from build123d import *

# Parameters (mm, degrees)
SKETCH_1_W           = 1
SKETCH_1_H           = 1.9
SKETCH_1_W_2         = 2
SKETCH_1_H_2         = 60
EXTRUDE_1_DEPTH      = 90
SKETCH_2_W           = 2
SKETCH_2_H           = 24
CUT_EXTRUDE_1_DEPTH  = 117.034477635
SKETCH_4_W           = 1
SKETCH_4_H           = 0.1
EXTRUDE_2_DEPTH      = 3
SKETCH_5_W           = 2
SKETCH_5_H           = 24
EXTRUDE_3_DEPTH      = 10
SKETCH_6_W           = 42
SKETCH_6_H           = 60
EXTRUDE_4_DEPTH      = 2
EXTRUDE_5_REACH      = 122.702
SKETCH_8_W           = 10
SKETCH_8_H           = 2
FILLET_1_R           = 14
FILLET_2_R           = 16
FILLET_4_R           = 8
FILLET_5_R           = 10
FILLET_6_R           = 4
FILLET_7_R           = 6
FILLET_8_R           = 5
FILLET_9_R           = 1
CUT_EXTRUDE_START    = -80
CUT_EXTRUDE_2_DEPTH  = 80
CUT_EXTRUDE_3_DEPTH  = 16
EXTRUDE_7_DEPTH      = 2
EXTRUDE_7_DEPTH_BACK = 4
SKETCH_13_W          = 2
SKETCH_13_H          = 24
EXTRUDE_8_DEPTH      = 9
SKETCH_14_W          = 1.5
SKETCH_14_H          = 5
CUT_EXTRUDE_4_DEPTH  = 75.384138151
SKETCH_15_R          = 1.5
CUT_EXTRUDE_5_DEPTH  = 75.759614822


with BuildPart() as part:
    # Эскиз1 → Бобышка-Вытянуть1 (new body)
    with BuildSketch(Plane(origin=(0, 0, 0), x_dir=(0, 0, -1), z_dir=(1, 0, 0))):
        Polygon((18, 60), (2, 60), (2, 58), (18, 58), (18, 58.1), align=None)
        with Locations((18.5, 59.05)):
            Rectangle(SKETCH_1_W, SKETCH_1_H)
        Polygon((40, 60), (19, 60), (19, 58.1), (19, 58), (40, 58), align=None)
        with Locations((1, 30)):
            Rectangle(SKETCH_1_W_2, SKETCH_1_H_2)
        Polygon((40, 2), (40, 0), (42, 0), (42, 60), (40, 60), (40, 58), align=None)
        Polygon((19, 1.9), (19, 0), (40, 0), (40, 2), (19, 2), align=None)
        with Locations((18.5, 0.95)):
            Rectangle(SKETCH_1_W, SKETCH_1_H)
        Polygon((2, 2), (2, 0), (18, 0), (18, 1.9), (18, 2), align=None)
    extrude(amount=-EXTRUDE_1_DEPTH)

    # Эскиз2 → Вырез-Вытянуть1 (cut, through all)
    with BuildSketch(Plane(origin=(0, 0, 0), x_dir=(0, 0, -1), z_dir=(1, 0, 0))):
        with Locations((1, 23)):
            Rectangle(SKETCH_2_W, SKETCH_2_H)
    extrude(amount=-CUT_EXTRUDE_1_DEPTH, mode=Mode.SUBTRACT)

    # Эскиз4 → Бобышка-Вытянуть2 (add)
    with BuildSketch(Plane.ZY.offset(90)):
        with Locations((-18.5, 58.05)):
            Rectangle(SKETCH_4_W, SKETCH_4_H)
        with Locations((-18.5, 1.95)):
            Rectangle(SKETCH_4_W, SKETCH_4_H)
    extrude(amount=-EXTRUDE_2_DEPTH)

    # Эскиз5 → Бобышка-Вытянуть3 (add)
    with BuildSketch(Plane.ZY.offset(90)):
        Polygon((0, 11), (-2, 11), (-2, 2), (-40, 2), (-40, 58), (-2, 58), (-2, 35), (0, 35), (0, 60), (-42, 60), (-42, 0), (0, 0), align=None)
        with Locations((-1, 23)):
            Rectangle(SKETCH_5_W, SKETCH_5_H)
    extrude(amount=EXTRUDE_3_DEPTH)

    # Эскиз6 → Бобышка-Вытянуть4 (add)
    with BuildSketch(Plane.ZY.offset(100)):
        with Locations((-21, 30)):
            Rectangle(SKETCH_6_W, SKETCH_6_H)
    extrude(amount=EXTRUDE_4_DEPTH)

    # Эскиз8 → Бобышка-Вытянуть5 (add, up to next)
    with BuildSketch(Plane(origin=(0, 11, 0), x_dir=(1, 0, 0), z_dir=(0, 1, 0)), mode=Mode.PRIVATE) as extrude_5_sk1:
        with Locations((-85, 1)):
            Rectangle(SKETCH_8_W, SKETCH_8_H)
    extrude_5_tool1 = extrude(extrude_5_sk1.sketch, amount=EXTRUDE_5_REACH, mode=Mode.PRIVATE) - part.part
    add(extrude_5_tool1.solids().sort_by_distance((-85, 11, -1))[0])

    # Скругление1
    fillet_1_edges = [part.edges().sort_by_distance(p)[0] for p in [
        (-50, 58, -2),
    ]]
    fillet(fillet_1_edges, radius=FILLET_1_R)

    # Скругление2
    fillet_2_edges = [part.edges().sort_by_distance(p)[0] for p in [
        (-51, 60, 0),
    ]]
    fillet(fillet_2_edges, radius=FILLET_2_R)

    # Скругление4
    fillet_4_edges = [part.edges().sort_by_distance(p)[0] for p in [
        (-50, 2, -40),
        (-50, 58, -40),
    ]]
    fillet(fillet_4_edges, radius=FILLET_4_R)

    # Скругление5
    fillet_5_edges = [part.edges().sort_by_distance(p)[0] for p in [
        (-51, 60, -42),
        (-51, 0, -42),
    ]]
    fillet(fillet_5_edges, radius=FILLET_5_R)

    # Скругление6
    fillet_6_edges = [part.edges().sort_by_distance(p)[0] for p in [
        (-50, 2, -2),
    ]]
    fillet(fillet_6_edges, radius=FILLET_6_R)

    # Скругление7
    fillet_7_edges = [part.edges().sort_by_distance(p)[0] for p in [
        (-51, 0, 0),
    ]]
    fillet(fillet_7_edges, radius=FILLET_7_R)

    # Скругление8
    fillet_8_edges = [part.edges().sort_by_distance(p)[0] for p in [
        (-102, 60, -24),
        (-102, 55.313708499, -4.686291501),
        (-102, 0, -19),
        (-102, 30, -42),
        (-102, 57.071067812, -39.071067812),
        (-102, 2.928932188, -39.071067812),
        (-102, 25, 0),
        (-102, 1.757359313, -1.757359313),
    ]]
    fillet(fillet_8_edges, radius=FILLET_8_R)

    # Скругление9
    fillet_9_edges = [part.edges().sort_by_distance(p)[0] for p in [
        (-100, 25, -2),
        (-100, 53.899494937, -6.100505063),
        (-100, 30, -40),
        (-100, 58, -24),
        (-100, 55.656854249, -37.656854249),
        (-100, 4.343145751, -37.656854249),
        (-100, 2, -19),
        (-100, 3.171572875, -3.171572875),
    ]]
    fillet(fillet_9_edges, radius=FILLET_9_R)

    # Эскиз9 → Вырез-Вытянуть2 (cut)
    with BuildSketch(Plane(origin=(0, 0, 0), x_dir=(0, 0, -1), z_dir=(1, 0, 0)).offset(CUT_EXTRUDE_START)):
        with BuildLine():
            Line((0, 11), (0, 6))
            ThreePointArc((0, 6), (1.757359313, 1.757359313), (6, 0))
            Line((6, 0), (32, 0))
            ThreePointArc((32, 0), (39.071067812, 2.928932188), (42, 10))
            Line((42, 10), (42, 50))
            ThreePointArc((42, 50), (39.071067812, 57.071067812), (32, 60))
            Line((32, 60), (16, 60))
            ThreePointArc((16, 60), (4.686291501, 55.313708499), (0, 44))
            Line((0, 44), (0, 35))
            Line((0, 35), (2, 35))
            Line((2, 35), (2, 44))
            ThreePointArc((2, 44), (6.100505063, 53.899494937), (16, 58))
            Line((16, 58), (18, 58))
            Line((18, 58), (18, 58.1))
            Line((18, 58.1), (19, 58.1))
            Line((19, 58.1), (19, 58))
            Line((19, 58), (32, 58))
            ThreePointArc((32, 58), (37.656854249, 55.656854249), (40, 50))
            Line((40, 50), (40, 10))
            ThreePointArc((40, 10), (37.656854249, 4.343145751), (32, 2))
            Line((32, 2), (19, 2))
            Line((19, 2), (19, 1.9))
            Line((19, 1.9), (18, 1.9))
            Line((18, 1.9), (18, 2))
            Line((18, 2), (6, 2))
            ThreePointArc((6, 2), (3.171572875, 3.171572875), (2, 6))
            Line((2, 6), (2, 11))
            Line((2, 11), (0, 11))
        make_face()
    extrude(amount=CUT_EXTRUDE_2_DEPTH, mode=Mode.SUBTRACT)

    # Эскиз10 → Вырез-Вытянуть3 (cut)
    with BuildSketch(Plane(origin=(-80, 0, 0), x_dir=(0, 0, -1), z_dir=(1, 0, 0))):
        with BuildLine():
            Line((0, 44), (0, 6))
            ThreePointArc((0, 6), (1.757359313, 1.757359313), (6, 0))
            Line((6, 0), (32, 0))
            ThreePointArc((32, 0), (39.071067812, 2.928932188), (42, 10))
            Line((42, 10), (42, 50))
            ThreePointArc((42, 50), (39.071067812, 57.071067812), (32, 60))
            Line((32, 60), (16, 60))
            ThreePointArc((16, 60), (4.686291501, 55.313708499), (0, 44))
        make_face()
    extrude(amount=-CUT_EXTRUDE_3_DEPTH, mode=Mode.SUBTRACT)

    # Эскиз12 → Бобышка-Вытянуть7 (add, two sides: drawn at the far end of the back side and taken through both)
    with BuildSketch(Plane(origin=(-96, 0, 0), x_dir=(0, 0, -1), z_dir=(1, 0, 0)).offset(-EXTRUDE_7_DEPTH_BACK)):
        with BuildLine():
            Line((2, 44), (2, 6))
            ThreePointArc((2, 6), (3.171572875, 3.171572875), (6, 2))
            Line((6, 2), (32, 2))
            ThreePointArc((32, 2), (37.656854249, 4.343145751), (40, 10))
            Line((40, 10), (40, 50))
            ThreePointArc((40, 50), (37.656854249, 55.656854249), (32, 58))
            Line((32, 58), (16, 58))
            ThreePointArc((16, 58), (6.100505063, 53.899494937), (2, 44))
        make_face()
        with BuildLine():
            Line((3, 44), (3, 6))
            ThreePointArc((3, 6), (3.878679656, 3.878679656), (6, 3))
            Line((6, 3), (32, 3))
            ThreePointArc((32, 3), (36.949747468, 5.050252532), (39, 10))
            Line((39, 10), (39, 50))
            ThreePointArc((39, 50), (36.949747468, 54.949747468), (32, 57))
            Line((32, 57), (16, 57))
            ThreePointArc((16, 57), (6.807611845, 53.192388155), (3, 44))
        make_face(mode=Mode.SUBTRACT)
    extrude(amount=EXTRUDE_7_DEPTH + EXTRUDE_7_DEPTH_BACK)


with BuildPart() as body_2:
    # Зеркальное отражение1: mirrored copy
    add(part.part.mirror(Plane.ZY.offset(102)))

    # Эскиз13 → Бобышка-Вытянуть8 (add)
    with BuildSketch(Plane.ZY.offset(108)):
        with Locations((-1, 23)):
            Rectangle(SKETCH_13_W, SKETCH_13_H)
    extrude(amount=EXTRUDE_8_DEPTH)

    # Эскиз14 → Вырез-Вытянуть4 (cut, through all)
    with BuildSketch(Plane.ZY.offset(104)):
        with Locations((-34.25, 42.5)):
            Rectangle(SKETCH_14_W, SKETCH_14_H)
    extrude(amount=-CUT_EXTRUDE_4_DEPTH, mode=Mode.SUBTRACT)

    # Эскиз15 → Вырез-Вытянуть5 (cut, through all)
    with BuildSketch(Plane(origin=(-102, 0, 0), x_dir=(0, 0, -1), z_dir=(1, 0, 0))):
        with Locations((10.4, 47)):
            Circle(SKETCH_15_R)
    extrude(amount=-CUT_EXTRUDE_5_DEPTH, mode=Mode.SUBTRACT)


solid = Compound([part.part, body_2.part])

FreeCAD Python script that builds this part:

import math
import FreeCAD as App
import Part
import Sketcher
Q = App.Units.Quantity


def edges_at(feature, points):
    """Names of the edges that pass closest to the given points."""
    edges = feature.Shape.Edges
    near = lambda p: min(range(len(edges)), key=lambda i: edges[i].distToShape(Part.Vertex(*p))[0])
    return sorted({f"Edge{near(p) + 1}" for p in points})

doc = App.newDocument("Part")
params = doc.addObject("Spreadsheet::Sheet", "Params")
for row, (alias, value) in enumerate([
    ("sketch1_width", "60 mm"),
    ("sketch1_width2", "56 mm"),
    ("sketch1_height", "42 mm"),
    ("sketch1_height2", "16 mm"),
    ("sketch1_height3", "1 mm"),
    ("pad1_length", "90 mm"),
    ("sketch2_width", "24 mm"),
    ("sketch2_height", "2 mm"),
    ("sketch3_height", "1 mm"),
    ("sketch3_width", "0.1 mm"),
    ("pad2_length", "3 mm"),
    ("sketch4_width", "60 mm"),
    ("sketch4_width2", "56 mm"),
    ("sketch4_height", "42 mm"),
    ("sketch4_height2", "38 mm"),
    ("pad3_length", "10 mm"),
    ("sketch5_width", "60 mm"),
    ("sketch5_height", "42 mm"),
    ("pad4_length", "2 mm"),
    ("sketch6_width", "10 mm"),
    ("sketch6_height", "2 mm"),
    ("fillet_radius", "14 mm"),
    ("fillet2_radius", "16 mm"),
    ("fillet3_radius", "8 mm"),
    ("fillet4_radius", "10 mm"),
    ("fillet5_radius", "4 mm"),
    ("fillet6_radius", "6 mm"),
    ("fillet7_radius", "5 mm"),
    ("fillet8_radius", "1 mm"),
    ("sketch7_radius", "6 mm"),
    ("sketch7_radius2", "10 mm"),
    ("sketch7_radius3", "16 mm"),
    ("sketch7_radius4", "14 mm"),
    ("sketch7_width", "5 mm"),
    ("pocket2_length", "80 mm"),
    ("sketch8_radius", "6 mm"),
    ("sketch8_radius2", "10 mm"),
    ("sketch8_radius3", "16 mm"),
    ("sketch8_width", "38 mm"),
    ("sketch8_height", "26 mm"),
    ("pocket3_length", "16 mm"),
    ("sketch9_radius", "4 mm"),
    ("sketch9_radius2", "8 mm"),
    ("sketch9_radius3", "14 mm"),
    ("sketch9_radius4", "13 mm"),
    ("sketch9_width", "38 mm"),
    ("pad6_length", "2 mm"),
    ("pad6_length2", "4 mm"),
    ("sketch10_width", "24 mm"),
    ("sketch10_height", "2 mm"),
    ("pad7_length", "9 mm"),
    ("sketch11_width", "5 mm"),
    ("sketch11_height", "1.5 mm"),
    ("sketch12_diameter", "3 mm"),
], start=1):
    params.set(f"A{row}", alias)
    params.set(f"B{row}", "=" + value)
    params.setAlias(f"B{row}", alias)

body = doc.addObject("PartDesign::Body", "Body")

sketch1 = body.newObject("Sketcher::SketchObject", "Sketch")
sketch1.AttachmentSupport = (doc.getObject("YZ_Plane"), [""])
sketch1.MapMode = "FlatFace"
sketch1.addGeometry([
    Part.LineSegment(App.Vector(0, -42, 0), App.Vector(60, -42, 0)),
    Part.LineSegment(App.Vector(60, -42, 0), App.Vector(60, 0, 0)),
    Part.LineSegment(App.Vector(60, 0, 0), App.Vector(0, 0, 0)),
    Part.LineSegment(App.Vector(0, 0, 0), App.Vector(0, -42, 0)),
    Part.LineSegment(App.Vector(58, -2, 0), App.Vector(58, -18, 0)),
    Part.LineSegment(App.Vector(58, -18, 0), App.Vector(58.1, -18, 0)),
    Part.LineSegment(App.Vector(58.1, -18, 0), App.Vector(58.1, -19, 0)),
    Part.LineSegment(App.Vector(58.1, -19, 0), App.Vector(58, -19, 0)),
    Part.LineSegment(App.Vector(58, -19, 0), App.Vector(58, -40, 0)),
    Part.LineSegment(App.Vector(58, -40, 0), App.Vector(2, -40, 0)),
    Part.LineSegment(App.Vector(2, -40, 0), App.Vector(2, -19, 0)),
    Part.LineSegment(App.Vector(2, -19, 0), App.Vector(1.9, -19, 0)),
    Part.LineSegment(App.Vector(1.9, -19, 0), App.Vector(1.9, -18, 0)),
    Part.LineSegment(App.Vector(1.9, -18, 0), App.Vector(2, -18, 0)),
    Part.LineSegment(App.Vector(2, -18, 0), App.Vector(2, -2, 0)),
    Part.LineSegment(App.Vector(2, -2, 0), App.Vector(58, -2, 0)),
], False)
sketch1.addConstraint([
    Sketcher.Constraint("Coincident", 0, 2, 1, 1),
    Sketcher.Constraint("Coincident", 1, 2, 2, 1),
    Sketcher.Constraint("Coincident", 2, 2, 3, 1),
    Sketcher.Constraint("Coincident", 3, 2, 0, 1),
    Sketcher.Constraint("Coincident", 4, 2, 5, 1),
    Sketcher.Constraint("Coincident", 5, 2, 6, 1),
    Sketcher.Constraint("Coincident", 6, 2, 7, 1),
    Sketcher.Constraint("Coincident", 7, 2, 8, 1),
    Sketcher.Constraint("Coincident", 8, 2, 9, 1),
    Sketcher.Constraint("Coincident", 9, 2, 10, 1),
    Sketcher.Constraint("Coincident", 10, 2, 11, 1),
    Sketcher.Constraint("Coincident", 11, 2, 12, 1),
    Sketcher.Constraint("Coincident", 12, 2, 13, 1),
    Sketcher.Constraint("Coincident", 13, 2, 14, 1),
    Sketcher.Constraint("Coincident", 14, 2, 15, 1),
    Sketcher.Constraint("Coincident", 15, 2, 4, 1),
    Sketcher.Constraint("Horizontal", 0),
    Sketcher.Constraint("Vertical", 1),
    Sketcher.Constraint("Horizontal", 2),
    Sketcher.Constraint("Vertical", 3),
    Sketcher.Constraint("Vertical", 4),
    Sketcher.Constraint("Horizontal", 5),
    Sketcher.Constraint("Vertical", 6),
    Sketcher.Constraint("Horizontal", 7),
    Sketcher.Constraint("Vertical", 8),
    Sketcher.Constraint("Horizontal", 9),
    Sketcher.Constraint("Vertical", 10),
    Sketcher.Constraint("Horizontal", 11),
    Sketcher.Constraint("Vertical", 12),
    Sketcher.Constraint("Horizontal", 13),
    Sketcher.Constraint("Vertical", 14),
    Sketcher.Constraint("Horizontal", 15),
    Sketcher.Constraint("Coincident", 2, 2, -1, 1),
    Sketcher.Constraint("Horizontal", 7, 2, 10, 2),
    Sketcher.Constraint("Horizontal", 5, 2, 12, 2),
    Sketcher.Constraint("Vertical", 4, 2, 7, 2),
    Sketcher.Constraint("Vertical", 10, 2, 13, 2),
    Sketcher.Constraint("Equal", 7, 11),
    Sketcher.Constraint("DistanceX", 0, 1, 0, 2, Q("60 mm")),
    Sketcher.Constraint("DistanceX", 9, 2, 9, 1, Q("56 mm")),
    Sketcher.Constraint("DistanceY", 1, 1, 1, 2, Q("42 mm")),
    Sketcher.Constraint("DistanceY", 4, 2, 4, 1, Q("16 mm")),
    Sketcher.Constraint("DistanceY", 6, 2, 6, 1, Q("1 mm")),
    Sketcher.Constraint("DistanceY", 8, 2, 8, 1, Q("21 mm")),
    Sketcher.Constraint("DistanceX", 5, 1, 5, 2, Q("0.1 mm")),
    Sketcher.Constraint("DistanceX", -1, 1, 4, 2, Q("58 mm")),
    Sketcher.Constraint("DistanceY", 4, 2, -1, 1, Q("18 mm")),
])
sketch1.setExpression("Constraints[38]", "Params.sketch1_width")
sketch1.setExpression("Constraints[39]", "Params.sketch1_width2")
sketch1.setExpression("Constraints[40]", "Params.sketch1_height")
sketch1.setExpression("Constraints[41]", "Params.sketch1_height2")
sketch1.setExpression("Constraints[42]", "Params.sketch1_height3")
pad1 = body.newObject("PartDesign::Pad", "Pad")
pad1.Profile = sketch1
pad1.setExpression("Length", "Params.pad1_length")
pad1.Reversed = True

sketch2 = body.newObject("Sketcher::SketchObject", "Sketch001")
sketch2.AttachmentSupport = (doc.getObject("YZ_Plane"), [""])
sketch2.MapMode = "FlatFace"
sketch2.addGeometry([
    Part.LineSegment(App.Vector(35, 0, 0), App.Vector(11, 0, 0)),
    Part.LineSegment(App.Vector(11, 0, 0), App.Vector(11, -2, 0)),
    Part.LineSegment(App.Vector(11, -2, 0), App.Vector(35, -2, 0)),
    Part.LineSegment(App.Vector(35, -2, 0), App.Vector(35, 0, 0)),
], False)
sketch2.addConstraint([
    Sketcher.Constraint("Coincident", 0, 2, 1, 1),
    Sketcher.Constraint("Coincident", 1, 2, 2, 1),
    Sketcher.Constraint("Coincident", 2, 2, 3, 1),
    Sketcher.Constraint("Coincident", 3, 2, 0, 1),
    Sketcher.Constraint("Horizontal", 0),
    Sketcher.Constraint("Vertical", 1),
    Sketcher.Constraint("Horizontal", 2),
    Sketcher.Constraint("Vertical", 3),
    Sketcher.Constraint("PointOnObject", 0, 2, -1),
    Sketcher.Constraint("DistanceX", 0, 2, 0, 1, Q("24 mm")),
    Sketcher.Constraint("DistanceY", 1, 2, 1, 1, Q("2 mm")),
    Sketcher.Constraint("DistanceX", -1, 1, 0, 2, Q("11 mm")),
])
sketch2.setExpression("Constraints[9]", "Params.sketch2_width")
sketch2.setExpression("Constraints[10]", "Params.sketch2_height")
pocket1 = body.newObject("PartDesign::Pocket", "Pocket")
pocket1.Profile = sketch2
pocket1.Type = "ThroughAll"

sketch3 = body.newObject("Sketcher::SketchObject", "Sketch002")
sketch3.AttachmentSupport = (doc.getObject("YZ_Plane"), [""])
sketch3.MapMode = "FlatFace"
sketch3.AttachmentOffset = App.Placement(App.Vector(0, 0, -90), App.Rotation())
sketch3.addGeometry([
    Part.LineSegment(App.Vector(58.1, -19, 0), App.Vector(58, -19, 0)),
    Part.LineSegment(App.Vector(58, -19, 0), App.Vector(58, -18, 0)),
    Part.LineSegment(App.Vector(58, -18, 0), App.Vector(58.1, -18, 0)),
    Part.LineSegment(App.Vector(58.1, -18, 0), App.Vector(58.1, -19, 0)),
    Part.LineSegment(App.Vector(2, -19, 0), App.Vector(1.9, -19, 0)),
    Part.LineSegment(App.Vector(1.9, -19, 0), App.Vector(1.9, -18, 0)),
    Part.LineSegment(App.Vector(1.9, -18, 0), App.Vector(2, -18, 0)),
    Part.LineSegment(App.Vector(2, -18, 0), App.Vector(2, -19, 0)),
], False)
sketch3.addConstraint([
    Sketcher.Constraint("Coincident", 0, 2, 1, 1),
    Sketcher.Constraint("Coincident", 1, 2, 2, 1),
    Sketcher.Constraint("Coincident", 2, 2, 3, 1),
    Sketcher.Constraint("Coincident", 3, 2, 0, 1),
    Sketcher.Constraint("Coincident", 4, 2, 5, 1),
    Sketcher.Constraint("Coincident", 5, 2, 6, 1),
    Sketcher.Constraint("Coincident", 6, 2, 7, 1),
    Sketcher.Constraint("Coincident", 7, 2, 4, 1),
    Sketcher.Constraint("Horizontal", 0),
    Sketcher.Constraint("Vertical", 1),
    Sketcher.Constraint("Horizontal", 2),
    Sketcher.Constraint("Vertical", 3),
    Sketcher.Constraint("Horizontal", 4),
    Sketcher.Constraint("Vertical", 5),
    Sketcher.Constraint("Horizontal", 6),
    Sketcher.Constraint("Vertical", 7),
    Sketcher.Constraint("Horizontal", 3, 2, 4, 2),
    Sketcher.Constraint("Horizontal", 2, 2, 5, 2),
    Sketcher.Constraint("Equal", 2, 4),
    Sketcher.Constraint("DistanceY", 1, 1, 1, 2, Q("1 mm")),
    Sketcher.Constraint("DistanceX", 0, 2, 0, 1, Q("0.1 mm")),
    Sketcher.Constraint("DistanceX", -1, 1, 0, 2, Q("58 mm")),
    Sketcher.Constraint("DistanceY", 0, 2, -1, 1, Q("19 mm")),
    Sketcher.Constraint("DistanceX", -1, 1, 6, 2, Q("2 mm")),
])
sketch3.setExpression("Constraints[19]", "Params.sketch3_height")
sketch3.setExpression("Constraints[20]", "Params.sketch3_width")
pad2 = body.newObject("PartDesign::Pad", "Pad001")
pad2.Profile = sketch3
pad2.setExpression("Length", "Params.pad2_length")

sketch4 = body.newObject("Sketcher::SketchObject", "Sketch003")
sketch4.AttachmentSupport = (doc.getObject("YZ_Plane"), [""])
sketch4.MapMode = "FlatFace"
sketch4.AttachmentOffset = App.Placement(App.Vector(0, 0, -90), App.Rotation())
sketch4.addGeometry([
    Part.LineSegment(App.Vector(60, 0, 0), App.Vector(60, -42, 0)),
    Part.LineSegment(App.Vector(60, -42, 0), App.Vector(0, -42, 0)),
    Part.LineSegment(App.Vector(0, -42, 0), App.Vector(0, 0, 0)),
    Part.LineSegment(App.Vector(0, 0, 0), App.Vector(60, 0, 0)),
    Part.LineSegment(App.Vector(2, -2, 0), App.Vector(2, -40, 0)),
    Part.LineSegment(App.Vector(2, -40, 0), App.Vector(58, -40, 0)),
    Part.LineSegment(App.Vector(58, -40, 0), App.Vector(58, -2, 0)),
    Part.LineSegment(App.Vector(58, -2, 0), App.Vector(2, -2, 0)),
], False)
sketch4.addConstraint([
    Sketcher.Constraint("Coincident", 0, 2, 1, 1),
    Sketcher.Constraint("Coincident", 1, 2, 2, 1),
    Sketcher.Constraint("Coincident", 2, 2, 3, 1),
    Sketcher.Constraint("Coincident", 3, 2, 0, 1),
    Sketcher.Constraint("Coincident", 4, 2, 5, 1),
    Sketcher.Constraint("Coincident", 5, 2, 6, 1),
    Sketcher.Constraint("Coincident", 6, 2, 7, 1),
    Sketcher.Constraint("Coincident", 7, 2, 4, 1),
    Sketcher.Constraint("Vertical", 0),
    Sketcher.Constraint("Horizontal", 1),
    Sketcher.Constraint("Vertical", 2),
    Sketcher.Constraint("Horizontal", 3),
    Sketcher.Constraint("Vertical", 4),
    Sketcher.Constraint("Horizontal", 5),
    Sketcher.Constraint("Vertical", 6),
    Sketcher.Constraint("Horizontal", 7),
    Sketcher.Constraint("Coincident", 2, 2, -1, 1),
    Sketcher.Constraint("DistanceX", 1, 2, 1, 1, Q("60 mm")),
    Sketcher.Constraint("DistanceX", 5, 1, 5, 2, Q("56 mm")),
    Sketcher.Constraint("DistanceY", 0, 2, 0, 1, Q("42 mm")),
    Sketcher.Constraint("DistanceY", 4, 2, 4, 1, Q("38 mm")),
    Sketcher.Constraint("DistanceX", -1, 1, 4, 2, Q("2 mm")),
    Sketcher.Constraint("DistanceY", 4, 2, -1, 1, Q("40 mm")),
])
sketch4.setExpression("Constraints[17]", "Params.sketch4_width")
sketch4.setExpression("Constraints[18]", "Params.sketch4_width2")
sketch4.setExpression("Constraints[19]", "Params.sketch4_height")
sketch4.setExpression("Constraints[20]", "Params.sketch4_height2")
pad3 = body.newObject("PartDesign::Pad", "Pad002")
pad3.Profile = sketch4
pad3.setExpression("Length", "Params.pad3_length")
pad3.Reversed = True

sketch5 = body.newObject("Sketcher::SketchObject", "Sketch004")
sketch5.AttachmentSupport = (doc.getObject("YZ_Plane"), [""])
sketch5.MapMode = "FlatFace"
sketch5.AttachmentOffset = App.Placement(App.Vector(0, 0, -100), App.Rotation())
sketch5.addGeometry([
    Part.LineSegment(App.Vector(60, -42, 0), App.Vector(0, -42, 0)),
    Part.LineSegment(App.Vector(0, -42, 0), App.Vector(0, 0, 0)),
    Part.LineSegment(App.Vector(0, 0, 0), App.Vector(60, 0, 0)),
    Part.LineSegment(App.Vector(60, 0, 0), App.Vector(60, -42, 0)),
], False)
sketch5.addConstraint([
    Sketcher.Constraint("Coincident", 0, 2, 1, 1),
    Sketcher.Constraint("Coincident", 1, 2, 2, 1),
    Sketcher.Constraint("Coincident", 2, 2, 3, 1),
    Sketcher.Constraint("Coincident", 3, 2, 0, 1),
    Sketcher.Constraint("Horizontal", 0),
    Sketcher.Constraint("Vertical", 1),
    Sketcher.Constraint("Horizontal", 2),
    Sketcher.Constraint("Vertical", 3),
    Sketcher.Constraint("Coincident", 1, 2, -1, 1),
    Sketcher.Constraint("DistanceX", 0, 2, 0, 1, Q("60 mm")),
    Sketcher.Constraint("DistanceY", 1, 1, 1, 2, Q("42 mm")),
])
sketch5.setExpression("Constraints[9]", "Params.sketch5_width")
sketch5.setExpression("Constraints[10]", "Params.sketch5_height")
pad4 = body.newObject("PartDesign::Pad", "Pad003")
pad4.Profile = sketch5
pad4.setExpression("Length", "Params.pad4_length")
pad4.Reversed = True

sketch6 = body.newObject("Sketcher::SketchObject", "Sketch005")
sketch6.AttachmentSupport = (doc.getObject("XZ_Plane"), [""])
sketch6.MapMode = "FlatFace"
sketch6.AttachmentOffset = App.Placement(App.Vector(0, 0, -11), App.Rotation())
sketch6.addGeometry([
    Part.LineSegment(App.Vector(-90, -2, 0), App.Vector(-90, 0, 0)),
    Part.LineSegment(App.Vector(-90, 0, 0), App.Vector(-80, 0, 0)),
    Part.LineSegment(App.Vector(-80, 0, 0), App.Vector(-80, -2, 0)),
    Part.LineSegment(App.Vector(-80, -2, 0), App.Vector(-90, -2, 0)),
], False)
sketch6.addConstraint([
    Sketcher.Constraint("Coincident", 0, 2, 1, 1),
    Sketcher.Constraint("Coincident", 1, 2, 2, 1),
    Sketcher.Constraint("Coincident", 2, 2, 3, 1),
    Sketcher.Constraint("Coincident", 3, 2, 0, 1),
    Sketcher.Constraint("Vertical", 0),
    Sketcher.Constraint("Horizontal", 1),
    Sketcher.Constraint("Vertical", 2),
    Sketcher.Constraint("Horizontal", 3),
    Sketcher.Constraint("PointOnObject", 0, 2, -1),
    Sketcher.Constraint("DistanceX", 1, 1, 1, 2, Q("10 mm")),
    Sketcher.Constraint("DistanceY", 0, 1, 0, 2, Q("2 mm")),
    Sketcher.Constraint("DistanceX", 0, 2, -1, 1, Q("90 mm")),
])
sketch6.setExpression("Constraints[9]", "Params.sketch6_width")
sketch6.setExpression("Constraints[10]", "Params.sketch6_height")
pad5 = body.newObject("PartDesign::Pad", "Pad004")
pad5.Profile = sketch6
pad5.Type = "UpToFirst"
pad5.Reversed = True
doc.recompute()

fillet = body.newObject("PartDesign::Fillet", "Fillet")
fillet.Base = (pad5, edges_at(pad5, [(-50, 58, -2)]))
fillet.setExpression("Radius", "Params.fillet_radius")
doc.recompute()

fillet2 = body.newObject("PartDesign::Fillet", "Fillet001")
fillet2.Base = (fillet, edges_at(fillet, [(-51, 60, 0)]))
fillet2.setExpression("Radius", "Params.fillet2_radius")
doc.recompute()

fillet3 = body.newObject("PartDesign::Fillet", "Fillet002")
fillet3.Base = (fillet2, edges_at(fillet2, [(-50, 2, -40), (-50, 58, -40)]))
fillet3.setExpression("Radius", "Params.fillet3_radius")
doc.recompute()

fillet4 = body.newObject("PartDesign::Fillet", "Fillet003")
fillet4.Base = (fillet3, edges_at(fillet3, [(-51, 60, -42), (-51, 0, -42)]))
fillet4.setExpression("Radius", "Params.fillet4_radius")
doc.recompute()

fillet5 = body.newObject("PartDesign::Fillet", "Fillet004")
fillet5.Base = (fillet4, edges_at(fillet4, [(-50, 2, -2)]))
fillet5.setExpression("Radius", "Params.fillet5_radius")
doc.recompute()

fillet6 = body.newObject("PartDesign::Fillet", "Fillet005")
fillet6.Base = (fillet5, edges_at(fillet5, [(-51, 0, 0)]))
fillet6.setExpression("Radius", "Params.fillet6_radius")
doc.recompute()

fillet7 = body.newObject("PartDesign::Fillet", "Fillet006")
fillet7.Base = (fillet6, edges_at(fillet6, [
    (-102, 60, -24),
    (-102, 55.314, -4.686),
    (-102, 0, -19),
    (-102, 30, -42),
    (-102, 57.071, -39.071),
    (-102, 2.929, -39.071),
    (-102, 25, 0),
    (-102, 1.757, -1.757),
]))
fillet7.setExpression("Radius", "Params.fillet7_radius")
doc.recompute()

fillet8 = body.newObject("PartDesign::Fillet", "Fillet007")
fillet8.Base = (fillet7, edges_at(fillet7, [
    (-100, 25, -2),
    (-100, 53.899, -6.101),
    (-100, 30, -40),
    (-100, 58, -24),
    (-100, 55.657, -37.657),
    (-100, 4.343, -37.657),
    (-100, 2, -19),
    (-100, 3.172, -3.172),
]))
fillet8.setExpression("Radius", "Params.fillet8_radius")

sketch7 = body.newObject("Sketcher::SketchObject", "Sketch006")
sketch7.AttachmentSupport = (doc.getObject("YZ_Plane"), [""])
sketch7.MapMode = "FlatFace"
sketch7.AttachmentOffset = App.Placement(App.Vector(0, 0, -80), App.Rotation())
sketch7.addGeometry([
    Part.LineSegment(App.Vector(11, 0, 0), App.Vector(6, 0, 0)),
    Part.ArcOfCircle(Part.Circle(App.Vector(6, -6, 0), App.Vector(0, 0, 1), 6), math.radians(90), math.radians(180)),
    Part.LineSegment(App.Vector(0, -6, 0), App.Vector(0, -32, 0)),
    Part.ArcOfCircle(Part.Circle(App.Vector(10, -32, 0), App.Vector(0, 0, 1), 10), math.radians(180), math.radians(270)),
    Part.LineSegment(App.Vector(10, -42, 0), App.Vector(50, -42, 0)),
    Part.ArcOfCircle(Part.Circle(App.Vector(50, -32, 0), App.Vector(0, 0, 1), 10), math.radians(-90), math.radians(0)),
    Part.LineSegment(App.Vector(60, -32, 0), App.Vector(60, -16, 0)),
    Part.ArcOfCircle(Part.Circle(App.Vector(44, -16, 0), App.Vector(0, 0, 1), 16), math.radians(0), math.radians(90)),
    Part.LineSegment(App.Vector(44, 0, 0), App.Vector(35, 0, 0)),
    Part.LineSegment(App.Vector(35, 0, 0), App.Vector(35, -2, 0)),
    Part.LineSegment(App.Vector(35, -2, 0), App.Vector(44, -2, 0)),
    Part.ArcOfCircle(Part.Circle(App.Vector(44, -16, 0), App.Vector(0, 0, 1), 14), math.radians(0), math.radians(90)),
    Part.LineSegment(App.Vector(58, -16, 0), App.Vector(58, -18, 0)),
    Part.LineSegment(App.Vector(58, -18, 0), App.Vector(58.1, -18, 0)),
    Part.LineSegment(App.Vector(58.1, -18, 0), App.Vector(58.1, -19, 0)),
    Part.LineSegment(App.Vector(58.1, -19, 0), App.Vector(58, -19, 0)),
    Part.LineSegment(App.Vector(58, -19, 0), App.Vector(58, -32, 0)),
    Part.ArcOfCircle(Part.Circle(App.Vector(50, -32, 0), App.Vector(0, 0, 1), 8), math.radians(-90), math.radians(0)),
    Part.LineSegment(App.Vector(50, -40, 0), App.Vector(10, -40, 0)),
    Part.ArcOfCircle(Part.Circle(App.Vector(10, -32, 0), App.Vector(0, 0, 1), 8), math.radians(-180), math.radians(-90)),
    Part.LineSegment(App.Vector(2, -32, 0), App.Vector(2, -19, 0)),
    Part.LineSegment(App.Vector(2, -19, 0), App.Vector(1.9, -19, 0)),
    Part.LineSegment(App.Vector(1.9, -19, 0), App.Vector(1.9, -18, 0)),
    Part.LineSegment(App.Vector(1.9, -18, 0), App.Vector(2, -18, 0)),
    Part.LineSegment(App.Vector(2, -18, 0), App.Vector(2, -6, 0)),
    Part.ArcOfCircle(Part.Circle(App.Vector(6, -6, 0), App.Vector(0, 0, 1), 4), math.radians(90), math.radians(180)),
    Part.LineSegment(App.Vector(6, -2, 0), App.Vector(11, -2, 0)),
    Part.LineSegment(App.Vector(11, -2, 0), App.Vector(11, 0, 0)),
], False)
sketch7.addConstraint([
    Sketcher.Constraint("Tangent", 0, 2, 1, 1),
    Sketcher.Constraint("Tangent", 1, 2, 2, 1),
    Sketcher.Constraint("Tangent", 2, 2, 3, 1),
    Sketcher.Constraint("Tangent", 3, 2, 4, 1),
    Sketcher.Constraint("Tangent", 4, 2, 5, 1),
    Sketcher.Constraint("Tangent", 5, 2, 6, 1),
    Sketcher.Constraint("Tangent", 6, 2, 7, 1),
    Sketcher.Constraint("Tangent", 7, 2, 8, 1),
    Sketcher.Constraint("Coincident", 8, 2, 9, 1),
    Sketcher.Constraint("Coincident", 9, 2, 10, 1),
    Sketcher.Constraint("Tangent", 10, 2, 11, 2),
    Sketcher.Constraint("Tangent", 11, 1, 12, 1),
    Sketcher.Constraint("Coincident", 12, 2, 13, 1),
    Sketcher.Constraint("Coincident", 13, 2, 14, 1),
    Sketcher.Constraint("Coincident", 14, 2, 15, 1),
    Sketcher.Constraint("Coincident", 15, 2, 16, 1),
    Sketcher.Constraint("Tangent", 16, 2, 17, 2),
    Sketcher.Constraint("Tangent", 17, 1, 18, 1),
    Sketcher.Constraint("Tangent", 18, 2, 19, 2),
    Sketcher.Constraint("Tangent", 19, 1, 20, 1),
    Sketcher.Constraint("Coincident", 20, 2, 21, 1),
    Sketcher.Constraint("Coincident", 21, 2, 22, 1),
    Sketcher.Constraint("Coincident", 22, 2, 23, 1),
    Sketcher.Constraint("Coincident", 23, 2, 24, 1),
    Sketcher.Constraint("Tangent", 24, 2, 25, 2),
    Sketcher.Constraint("Tangent", 25, 1, 26, 1),
    Sketcher.Constraint("Coincident", 26, 2, 27, 1),
    Sketcher.Constraint("Coincident", 27, 2, 0, 1),
    Sketcher.Constraint("Horizontal", 0),
    Sketcher.Constraint("Vertical", 2),
    Sketcher.Constraint("Horizontal", 4),
    Sketcher.Constraint("Vertical", 6),
    Sketcher.Constraint("Horizontal", 8),
    Sketcher.Constraint("Vertical", 9),
    Sketcher.Constraint("Horizontal", 10),
    Sketcher.Constraint("Vertical", 12),
    Sketcher.Constraint("Horizontal", 13),
    Sketcher.Constraint("Vertical", 14),
    Sketcher.Constraint("Horizontal", 15),
    Sketcher.Constraint("Vertical", 16),
    Sketcher.Constraint("Horizontal", 18),
    Sketcher.Constraint("Vertical", 20),
    Sketcher.Constraint("Horizontal", 21),
    Sketcher.Constraint("Vertical", 22),
    Sketcher.Constraint("Horizontal", 23),
    Sketcher.Constraint("Vertical", 24),
    Sketcher.Constraint("Horizontal", 26),
    Sketcher.Constraint("Vertical", 27),
    Sketcher.Constraint("Coincident", 11, 3, 7, 3),
    Sketcher.Constraint("Coincident", 17, 3, 5, 3),
    Sketcher.Constraint("Coincident", 19, 3, 3, 3),
    Sketcher.Constraint("Coincident", 25, 3, 1, 3),
    Sketcher.Constraint("Equal", 3, 5),
    Sketcher.Constraint("PointOnObject", 0, 2, -1),
    Sketcher.Constraint("PointOnObject", 1, 2, -2),
    Sketcher.Constraint("PointOnObject", 7, 2, -1),
    Sketcher.Constraint("Horizontal", 15, 2, 20, 2),
    Sketcher.Constraint("Horizontal", 13, 2, 22, 2),
    Sketcher.Constraint("Horizontal", 10, 2, 25, 1),
    Sketcher.Constraint("Vertical", 12, 2, 15, 2),
    Sketcher.Constraint("Equal", 15, 21),
    Sketcher.Constraint("Equal", 9, 12),
    Sketcher.Constraint("Radius", 1, Q("6 mm")),
    Sketcher.Constraint("Radius", 3, Q("10 mm")),
    Sketcher.Constraint("Radius", 7, Q("16 mm")),
    Sketcher.Constraint("Radius", 11, Q("14 mm")),
    Sketcher.Constraint("DistanceX", 0, 2, 0, 1, Q("5 mm")),
    Sketcher.Constraint("DistanceX", 4, 1, 4, 2, Q("40 mm")),
    Sketcher.Constraint("DistanceX", 8, 2, 8, 1, Q("9 mm")),
    Sketcher.Constraint("DistanceY", 2, 2, 2, 1, Q("26 mm")),
    Sketcher.Constraint("DistanceY", 14, 2, 14, 1, Q("1 mm")),
    Sketcher.Constraint("DistanceX", 13, 1, 13, 2, Q("0.1 mm")),
])
sketch7.setExpression("Constraints[62]", "Params.sketch7_radius")
sketch7.setExpression("Constraints[63]", "Params.sketch7_radius2")
sketch7.setExpression("Constraints[64]", "Params.sketch7_radius3")
sketch7.setExpression("Constraints[65]", "Params.sketch7_radius4")
sketch7.setExpression("Constraints[66]", "Params.sketch7_width")
pocket2 = body.newObject("PartDesign::Pocket", "Pocket001")
pocket2.Profile = sketch7
pocket2.setExpression("Length", "Params.pocket2_length")
pocket2.Reversed = True

sketch8 = body.newObject("Sketcher::SketchObject", "Sketch007")
sketch8.AttachmentSupport = (doc.getObject("YZ_Plane"), [""])
sketch8.MapMode = "FlatFace"
sketch8.AttachmentOffset = App.Placement(App.Vector(0, 0, -80), App.Rotation())
sketch8.addGeometry([
    Part.LineSegment(App.Vector(44, 0, 0), App.Vector(6, 0, 0)),
    Part.ArcOfCircle(Part.Circle(App.Vector(6, -6, 0), App.Vector(0, 0, 1), 6), math.radians(90), math.radians(180)),
    Part.LineSegment(App.Vector(0, -6, 0), App.Vector(0, -32, 0)),
    Part.ArcOfCircle(Part.Circle(App.Vector(10, -32, 0), App.Vector(0, 0, 1), 10), math.radians(180), math.radians(270)),
    Part.LineSegment(App.Vector(10, -42, 0), App.Vector(50, -42, 0)),
    Part.ArcOfCircle(Part.Circle(App.Vector(50, -32, 0), App.Vector(0, 0, 1), 10), math.radians(-90), math.radians(0)),
    Part.LineSegment(App.Vector(60, -32, 0), App.Vector(60, -16, 0)),
    Part.ArcOfCircle(Part.Circle(App.Vector(44, -16, 0), App.Vector(0, 0, 1), 16), math.radians(0), math.radians(90)),
], False)
sketch8.addConstraint([
    Sketcher.Constraint("Tangent", 0, 2, 1, 1),
    Sketcher.Constraint("Tangent", 1, 2, 2, 1),
    Sketcher.Constraint("Tangent", 2, 2, 3, 1),
    Sketcher.Constraint("Tangent", 3, 2, 4, 1),
    Sketcher.Constraint("Tangent", 4, 2, 5, 1),
    Sketcher.Constraint("Tangent", 5, 2, 6, 1),
    Sketcher.Constraint("Tangent", 6, 2, 7, 1),
    Sketcher.Constraint("Tangent", 7, 2, 0, 1),
    Sketcher.Constraint("Horizontal", 0),
    Sketcher.Constraint("Vertical", 2),
    Sketcher.Constraint("Horizontal", 4),
    Sketcher.Constraint("Vertical", 6),
    Sketcher.Constraint("Equal", 3, 5),
    Sketcher.Constraint("PointOnObject", 0, 2, -1),
    Sketcher.Constraint("PointOnObject", 1, 2, -2),
    Sketcher.Constraint("Radius", 1, Q("6 mm")),
    Sketcher.Constraint("Radius", 3, Q("10 mm")),
    Sketcher.Constraint("Radius", 7, Q("16 mm")),
    Sketcher.Constraint("DistanceX", 0, 2, 0, 1, Q("38 mm")),
    Sketcher.Constraint("DistanceY", 2, 2, 2, 1, Q("26 mm")),
])
sketch8.setExpression("Constraints[15]", "Params.sketch8_radius")
sketch8.setExpression("Constraints[16]", "Params.sketch8_radius2")
sketch8.setExpression("Constraints[17]", "Params.sketch8_radius3")
sketch8.setExpression("Constraints[18]", "Params.sketch8_width")
sketch8.setExpression("Constraints[19]", "Params.sketch8_height")
pocket3 = body.newObject("PartDesign::Pocket", "Pocket002")
pocket3.Profile = sketch8
pocket3.setExpression("Length", "Params.pocket3_length")

sketch9 = body.newObject("Sketcher::SketchObject", "Sketch008")
sketch9.AttachmentSupport = (doc.getObject("YZ_Plane"), [""])
sketch9.MapMode = "FlatFace"
sketch9.AttachmentOffset = App.Placement(App.Vector(0, 0, -96), App.Rotation())
sketch9.addGeometry([
    Part.LineSegment(App.Vector(44, -2, 0), App.Vector(6, -2, 0)),
    Part.ArcOfCircle(Part.Circle(App.Vector(6, -6, 0), App.Vector(0, 0, 1), 4), math.radians(90), math.radians(180)),
    Part.LineSegment(App.Vector(2, -6, 0), App.Vector(2, -32, 0)),
    Part.ArcOfCircle(Part.Circle(App.Vector(10, -32, 0), App.Vector(0, 0, 1), 8), math.radians(-180), math.radians(-90)),
    Part.LineSegment(App.Vector(10, -40, 0), App.Vector(50, -40, 0)),
    Part.ArcOfCircle(Part.Circle(App.Vector(50, -32, 0), App.Vector(0, 0, 1), 8), math.radians(-90), math.radians(0)),
    Part.LineSegment(App.Vector(58, -32, 0), App.Vector(58, -16, 0)),
    Part.ArcOfCircle(Part.Circle(App.Vector(44, -16, 0), App.Vector(0, 0, 1), 14), math.radians(0), math.radians(90)),
    Part.LineSegment(App.Vector(6, -3, 0), App.Vector(44, -3, 0)),
    Part.ArcOfCircle(Part.Circle(App.Vector(44, -16, 0), App.Vector(0, 0, 1), 13), math.radians(0), math.radians(90)),
    Part.LineSegment(App.Vector(57, -16, 0), App.Vector(57, -32, 0)),
    Part.ArcOfCircle(Part.Circle(App.Vector(50, -32, 0), App.Vector(0, 0, 1), 7), math.radians(-90), math.radians(0)),
    Part.LineSegment(App.Vector(50, -39, 0), App.Vector(10, -39, 0)),
    Part.ArcOfCircle(Part.Circle(App.Vector(10, -32, 0), App.Vector(0, 0, 1), 7), math.radians(-180), math.radians(-90)),
    Part.LineSegment(App.Vector(3, -32, 0), App.Vector(3, -6, 0)),
    Part.ArcOfCircle(Part.Circle(App.Vector(6, -6, 0), App.Vector(0, 0, 1), 3), math.radians(90), math.radians(180)),
], False)
sketch9.addConstraint([
    Sketcher.Constraint("Tangent", 0, 2, 1, 1),
    Sketcher.Constraint("Tangent", 1, 2, 2, 1),
    Sketcher.Constraint("Tangent", 2, 2, 3, 1),
    Sketcher.Constraint("Tangent", 3, 2, 4, 1),
    Sketcher.Constraint("Tangent", 4, 2, 5, 1),
    Sketcher.Constraint("Tangent", 5, 2, 6, 1),
    Sketcher.Constraint("Tangent", 6, 2, 7, 1),
    Sketcher.Constraint("Tangent", 7, 2, 0, 1),
    Sketcher.Constraint("Tangent", 8, 2, 9, 2),
    Sketcher.Constraint("Tangent", 9, 1, 10, 1),
    Sketcher.Constraint("Tangent", 10, 2, 11, 2),
    Sketcher.Constraint("Tangent", 11, 1, 12, 1),
    Sketcher.Constraint("Tangent", 12, 2, 13, 2),
    Sketcher.Constraint("Tangent", 13, 1, 14, 1),
    Sketcher.Constraint("Tangent", 14, 2, 15, 2),
    Sketcher.Constraint("Tangent", 15, 1, 8, 1),
    Sketcher.Constraint("Horizontal", 0),
    Sketcher.Constraint("Vertical", 2),
    Sketcher.Constraint("Horizontal", 4),
    Sketcher.Constraint("Vertical", 6),
    Sketcher.Constraint("Horizontal", 8),
    Sketcher.Constraint("Vertical", 10),
    Sketcher.Constraint("Horizontal", 12),
    Sketcher.Constraint("Vertical", 14),
    Sketcher.Constraint("Coincident", 9, 3, 7, 3),
    Sketcher.Constraint("Coincident", 11, 3, 5, 3),
    Sketcher.Constraint("Coincident", 13, 3, 3, 3),
    Sketcher.Constraint("Equal", 3, 5),
    Sketcher.Constraint("Horizontal", 15, 3, 1, 2),
    Sketcher.Constraint("Radius", 1, Q("4 mm")),
    Sketcher.Constraint("Radius", 3, Q("8 mm")),
    Sketcher.Constraint("Radius", 7, Q("14 mm")),
    Sketcher.Constraint("Radius", 9, Q("13 mm")),
    Sketcher.Constraint("DistanceX", 0, 2, 0, 1, Q("38 mm")),
    Sketcher.Constraint("DistanceY", 2, 2, 2, 1, Q("26 mm")),
    Sketcher.Constraint("DistanceX", -1, 1, 1, 3, Q("6 mm")),
    Sketcher.Constraint("DistanceY", 1, 3, -1, 1, Q("6 mm")),
])
sketch9.setExpression("Constraints[29]", "Params.sketch9_radius")
sketch9.setExpression("Constraints[30]", "Params.sketch9_radius2")
sketch9.setExpression("Constraints[31]", "Params.sketch9_radius3")
sketch9.setExpression("Constraints[32]", "Params.sketch9_radius4")
sketch9.setExpression("Constraints[33]", "Params.sketch9_width")
pad6 = body.newObject("PartDesign::Pad", "Pad005")
pad6.Profile = sketch9
pad6.Type = "TwoLengths"
pad6.setExpression("Length", "Params.pad6_length")
pad6.setExpression("Length2", "Params.pad6_length2")
body2 = doc.addObject("PartDesign::Body", "Body001")
doc.recompute()

mirroring = doc.addObject("Part::Mirroring", "Mirroring")
mirroring.Source = body
mirroring.Base = App.Vector(-102, 0, 0)
mirroring.Normal = App.Vector(-1, 0, 0)
body2.BaseFeature = mirroring
doc.recompute()

sketch10 = body2.newObject("Sketcher::SketchObject", "Sketch009")
sketch10.AttachmentSupport = (doc.getObject("YZ_Plane001"), [""])
sketch10.MapMode = "FlatFace"
sketch10.AttachmentOffset = App.Placement(App.Vector(0, 0, -108), App.Rotation())
sketch10.addGeometry([
    Part.LineSegment(App.Vector(35, -2, 0), App.Vector(11, -2, 0)),
    Part.LineSegment(App.Vector(11, -2, 0), App.Vector(11, 0, 0)),
    Part.LineSegment(App.Vector(11, 0, 0), App.Vector(35, 0, 0)),
    Part.LineSegment(App.Vector(35, 0, 0), App.Vector(35, -2, 0)),
], False)
sketch10.addConstraint([
    Sketcher.Constraint("Coincident", 0, 2, 1, 1),
    Sketcher.Constraint("Coincident", 1, 2, 2, 1),
    Sketcher.Constraint("Coincident", 2, 2, 3, 1),
    Sketcher.Constraint("Coincident", 3, 2, 0, 1),
    Sketcher.Constraint("Horizontal", 0),
    Sketcher.Constraint("Vertical", 1),
    Sketcher.Constraint("Horizontal", 2),
    Sketcher.Constraint("Vertical", 3),
    Sketcher.Constraint("PointOnObject", 1, 2, -1),
    Sketcher.Constraint("DistanceX", 0, 2, 0, 1, Q("24 mm")),
    Sketcher.Constraint("DistanceY", 1, 1, 1, 2, Q("2 mm")),
    Sketcher.Constraint("DistanceX", -1, 1, 0, 2, Q("11 mm")),
])
sketch10.setExpression("Constraints[9]", "Params.sketch10_width")
sketch10.setExpression("Constraints[10]", "Params.sketch10_height")
pad7 = body2.newObject("PartDesign::Pad", "Pad006")
pad7.Profile = sketch10
pad7.setExpression("Length", "Params.pad7_length")
pad7.Reversed = True

sketch11 = body2.newObject("Sketcher::SketchObject", "Sketch010")
sketch11.AttachmentSupport = (doc.getObject("YZ_Plane001"), [""])
sketch11.MapMode = "FlatFace"
sketch11.AttachmentOffset = App.Placement(App.Vector(0, 0, -104), App.Rotation())
sketch11.addGeometry([
    Part.LineSegment(App.Vector(45, -35, 0), App.Vector(40, -35, 0)),
    Part.LineSegment(App.Vector(40, -35, 0), App.Vector(40, -33.5, 0)),
    Part.LineSegment(App.Vector(40, -33.5, 0), App.Vector(45, -33.5, 0)),
    Part.LineSegment(App.Vector(45, -33.5, 0), App.Vector(45, -35, 0)),
], False)
sketch11.addConstraint([
    Sketcher.Constraint("Coincident", 0, 2, 1, 1),
    Sketcher.Constraint("Coincident", 1, 2, 2, 1),
    Sketcher.Constraint("Coincident", 2, 2, 3, 1),
    Sketcher.Constraint("Coincident", 3, 2, 0, 1),
    Sketcher.Constraint("Horizontal", 0),
    Sketcher.Constraint("Vertical", 1),
    Sketcher.Constraint("Horizontal", 2),
    Sketcher.Constraint("Vertical", 3),
    Sketcher.Constraint("DistanceX", 0, 2, 0, 1, Q("5 mm")),
    Sketcher.Constraint("DistanceY", 1, 1, 1, 2, Q("1.5 mm")),
    Sketcher.Constraint("DistanceX", -1, 1, 0, 2, Q("40 mm")),
    Sketcher.Constraint("DistanceY", 0, 2, -1, 1, Q("35 mm")),
])
sketch11.setExpression("Constraints[8]", "Params.sketch11_width")
sketch11.setExpression("Constraints[9]", "Params.sketch11_height")
pocket4 = body2.newObject("PartDesign::Pocket", "Pocket003")
pocket4.Profile = sketch11
pocket4.Type = "ThroughAll"
pocket4.Reversed = True

sketch12 = body2.newObject("Sketcher::SketchObject", "Sketch011")
sketch12.AttachmentSupport = (doc.getObject("YZ_Plane001"), [""])
sketch12.MapMode = "FlatFace"
sketch12.AttachmentOffset = App.Placement(App.Vector(0, 0, -102), App.Rotation())
sketch12.addGeometry(Part.Circle(App.Vector(47, -10.4, 0), App.Vector(0, 0, 1), 1.5), False)
sketch12.addConstraint([
    Sketcher.Constraint("Diameter", 0, Q("3 mm")),
    Sketcher.Constraint("DistanceX", -1, 1, 0, 3, Q("47 mm")),
    Sketcher.Constraint("DistanceY", 0, 3, -1, 1, Q("10.4 mm")),
])
sketch12.setExpression("Constraints[0]", "Params.sketch12_diameter")
pocket5 = body2.newObject("PartDesign::Pocket", "Pocket004")
pocket5.Profile = sketch12
pocket5.Type = "ThroughAll"
mirroring.Visibility = False

doc.recompute()
